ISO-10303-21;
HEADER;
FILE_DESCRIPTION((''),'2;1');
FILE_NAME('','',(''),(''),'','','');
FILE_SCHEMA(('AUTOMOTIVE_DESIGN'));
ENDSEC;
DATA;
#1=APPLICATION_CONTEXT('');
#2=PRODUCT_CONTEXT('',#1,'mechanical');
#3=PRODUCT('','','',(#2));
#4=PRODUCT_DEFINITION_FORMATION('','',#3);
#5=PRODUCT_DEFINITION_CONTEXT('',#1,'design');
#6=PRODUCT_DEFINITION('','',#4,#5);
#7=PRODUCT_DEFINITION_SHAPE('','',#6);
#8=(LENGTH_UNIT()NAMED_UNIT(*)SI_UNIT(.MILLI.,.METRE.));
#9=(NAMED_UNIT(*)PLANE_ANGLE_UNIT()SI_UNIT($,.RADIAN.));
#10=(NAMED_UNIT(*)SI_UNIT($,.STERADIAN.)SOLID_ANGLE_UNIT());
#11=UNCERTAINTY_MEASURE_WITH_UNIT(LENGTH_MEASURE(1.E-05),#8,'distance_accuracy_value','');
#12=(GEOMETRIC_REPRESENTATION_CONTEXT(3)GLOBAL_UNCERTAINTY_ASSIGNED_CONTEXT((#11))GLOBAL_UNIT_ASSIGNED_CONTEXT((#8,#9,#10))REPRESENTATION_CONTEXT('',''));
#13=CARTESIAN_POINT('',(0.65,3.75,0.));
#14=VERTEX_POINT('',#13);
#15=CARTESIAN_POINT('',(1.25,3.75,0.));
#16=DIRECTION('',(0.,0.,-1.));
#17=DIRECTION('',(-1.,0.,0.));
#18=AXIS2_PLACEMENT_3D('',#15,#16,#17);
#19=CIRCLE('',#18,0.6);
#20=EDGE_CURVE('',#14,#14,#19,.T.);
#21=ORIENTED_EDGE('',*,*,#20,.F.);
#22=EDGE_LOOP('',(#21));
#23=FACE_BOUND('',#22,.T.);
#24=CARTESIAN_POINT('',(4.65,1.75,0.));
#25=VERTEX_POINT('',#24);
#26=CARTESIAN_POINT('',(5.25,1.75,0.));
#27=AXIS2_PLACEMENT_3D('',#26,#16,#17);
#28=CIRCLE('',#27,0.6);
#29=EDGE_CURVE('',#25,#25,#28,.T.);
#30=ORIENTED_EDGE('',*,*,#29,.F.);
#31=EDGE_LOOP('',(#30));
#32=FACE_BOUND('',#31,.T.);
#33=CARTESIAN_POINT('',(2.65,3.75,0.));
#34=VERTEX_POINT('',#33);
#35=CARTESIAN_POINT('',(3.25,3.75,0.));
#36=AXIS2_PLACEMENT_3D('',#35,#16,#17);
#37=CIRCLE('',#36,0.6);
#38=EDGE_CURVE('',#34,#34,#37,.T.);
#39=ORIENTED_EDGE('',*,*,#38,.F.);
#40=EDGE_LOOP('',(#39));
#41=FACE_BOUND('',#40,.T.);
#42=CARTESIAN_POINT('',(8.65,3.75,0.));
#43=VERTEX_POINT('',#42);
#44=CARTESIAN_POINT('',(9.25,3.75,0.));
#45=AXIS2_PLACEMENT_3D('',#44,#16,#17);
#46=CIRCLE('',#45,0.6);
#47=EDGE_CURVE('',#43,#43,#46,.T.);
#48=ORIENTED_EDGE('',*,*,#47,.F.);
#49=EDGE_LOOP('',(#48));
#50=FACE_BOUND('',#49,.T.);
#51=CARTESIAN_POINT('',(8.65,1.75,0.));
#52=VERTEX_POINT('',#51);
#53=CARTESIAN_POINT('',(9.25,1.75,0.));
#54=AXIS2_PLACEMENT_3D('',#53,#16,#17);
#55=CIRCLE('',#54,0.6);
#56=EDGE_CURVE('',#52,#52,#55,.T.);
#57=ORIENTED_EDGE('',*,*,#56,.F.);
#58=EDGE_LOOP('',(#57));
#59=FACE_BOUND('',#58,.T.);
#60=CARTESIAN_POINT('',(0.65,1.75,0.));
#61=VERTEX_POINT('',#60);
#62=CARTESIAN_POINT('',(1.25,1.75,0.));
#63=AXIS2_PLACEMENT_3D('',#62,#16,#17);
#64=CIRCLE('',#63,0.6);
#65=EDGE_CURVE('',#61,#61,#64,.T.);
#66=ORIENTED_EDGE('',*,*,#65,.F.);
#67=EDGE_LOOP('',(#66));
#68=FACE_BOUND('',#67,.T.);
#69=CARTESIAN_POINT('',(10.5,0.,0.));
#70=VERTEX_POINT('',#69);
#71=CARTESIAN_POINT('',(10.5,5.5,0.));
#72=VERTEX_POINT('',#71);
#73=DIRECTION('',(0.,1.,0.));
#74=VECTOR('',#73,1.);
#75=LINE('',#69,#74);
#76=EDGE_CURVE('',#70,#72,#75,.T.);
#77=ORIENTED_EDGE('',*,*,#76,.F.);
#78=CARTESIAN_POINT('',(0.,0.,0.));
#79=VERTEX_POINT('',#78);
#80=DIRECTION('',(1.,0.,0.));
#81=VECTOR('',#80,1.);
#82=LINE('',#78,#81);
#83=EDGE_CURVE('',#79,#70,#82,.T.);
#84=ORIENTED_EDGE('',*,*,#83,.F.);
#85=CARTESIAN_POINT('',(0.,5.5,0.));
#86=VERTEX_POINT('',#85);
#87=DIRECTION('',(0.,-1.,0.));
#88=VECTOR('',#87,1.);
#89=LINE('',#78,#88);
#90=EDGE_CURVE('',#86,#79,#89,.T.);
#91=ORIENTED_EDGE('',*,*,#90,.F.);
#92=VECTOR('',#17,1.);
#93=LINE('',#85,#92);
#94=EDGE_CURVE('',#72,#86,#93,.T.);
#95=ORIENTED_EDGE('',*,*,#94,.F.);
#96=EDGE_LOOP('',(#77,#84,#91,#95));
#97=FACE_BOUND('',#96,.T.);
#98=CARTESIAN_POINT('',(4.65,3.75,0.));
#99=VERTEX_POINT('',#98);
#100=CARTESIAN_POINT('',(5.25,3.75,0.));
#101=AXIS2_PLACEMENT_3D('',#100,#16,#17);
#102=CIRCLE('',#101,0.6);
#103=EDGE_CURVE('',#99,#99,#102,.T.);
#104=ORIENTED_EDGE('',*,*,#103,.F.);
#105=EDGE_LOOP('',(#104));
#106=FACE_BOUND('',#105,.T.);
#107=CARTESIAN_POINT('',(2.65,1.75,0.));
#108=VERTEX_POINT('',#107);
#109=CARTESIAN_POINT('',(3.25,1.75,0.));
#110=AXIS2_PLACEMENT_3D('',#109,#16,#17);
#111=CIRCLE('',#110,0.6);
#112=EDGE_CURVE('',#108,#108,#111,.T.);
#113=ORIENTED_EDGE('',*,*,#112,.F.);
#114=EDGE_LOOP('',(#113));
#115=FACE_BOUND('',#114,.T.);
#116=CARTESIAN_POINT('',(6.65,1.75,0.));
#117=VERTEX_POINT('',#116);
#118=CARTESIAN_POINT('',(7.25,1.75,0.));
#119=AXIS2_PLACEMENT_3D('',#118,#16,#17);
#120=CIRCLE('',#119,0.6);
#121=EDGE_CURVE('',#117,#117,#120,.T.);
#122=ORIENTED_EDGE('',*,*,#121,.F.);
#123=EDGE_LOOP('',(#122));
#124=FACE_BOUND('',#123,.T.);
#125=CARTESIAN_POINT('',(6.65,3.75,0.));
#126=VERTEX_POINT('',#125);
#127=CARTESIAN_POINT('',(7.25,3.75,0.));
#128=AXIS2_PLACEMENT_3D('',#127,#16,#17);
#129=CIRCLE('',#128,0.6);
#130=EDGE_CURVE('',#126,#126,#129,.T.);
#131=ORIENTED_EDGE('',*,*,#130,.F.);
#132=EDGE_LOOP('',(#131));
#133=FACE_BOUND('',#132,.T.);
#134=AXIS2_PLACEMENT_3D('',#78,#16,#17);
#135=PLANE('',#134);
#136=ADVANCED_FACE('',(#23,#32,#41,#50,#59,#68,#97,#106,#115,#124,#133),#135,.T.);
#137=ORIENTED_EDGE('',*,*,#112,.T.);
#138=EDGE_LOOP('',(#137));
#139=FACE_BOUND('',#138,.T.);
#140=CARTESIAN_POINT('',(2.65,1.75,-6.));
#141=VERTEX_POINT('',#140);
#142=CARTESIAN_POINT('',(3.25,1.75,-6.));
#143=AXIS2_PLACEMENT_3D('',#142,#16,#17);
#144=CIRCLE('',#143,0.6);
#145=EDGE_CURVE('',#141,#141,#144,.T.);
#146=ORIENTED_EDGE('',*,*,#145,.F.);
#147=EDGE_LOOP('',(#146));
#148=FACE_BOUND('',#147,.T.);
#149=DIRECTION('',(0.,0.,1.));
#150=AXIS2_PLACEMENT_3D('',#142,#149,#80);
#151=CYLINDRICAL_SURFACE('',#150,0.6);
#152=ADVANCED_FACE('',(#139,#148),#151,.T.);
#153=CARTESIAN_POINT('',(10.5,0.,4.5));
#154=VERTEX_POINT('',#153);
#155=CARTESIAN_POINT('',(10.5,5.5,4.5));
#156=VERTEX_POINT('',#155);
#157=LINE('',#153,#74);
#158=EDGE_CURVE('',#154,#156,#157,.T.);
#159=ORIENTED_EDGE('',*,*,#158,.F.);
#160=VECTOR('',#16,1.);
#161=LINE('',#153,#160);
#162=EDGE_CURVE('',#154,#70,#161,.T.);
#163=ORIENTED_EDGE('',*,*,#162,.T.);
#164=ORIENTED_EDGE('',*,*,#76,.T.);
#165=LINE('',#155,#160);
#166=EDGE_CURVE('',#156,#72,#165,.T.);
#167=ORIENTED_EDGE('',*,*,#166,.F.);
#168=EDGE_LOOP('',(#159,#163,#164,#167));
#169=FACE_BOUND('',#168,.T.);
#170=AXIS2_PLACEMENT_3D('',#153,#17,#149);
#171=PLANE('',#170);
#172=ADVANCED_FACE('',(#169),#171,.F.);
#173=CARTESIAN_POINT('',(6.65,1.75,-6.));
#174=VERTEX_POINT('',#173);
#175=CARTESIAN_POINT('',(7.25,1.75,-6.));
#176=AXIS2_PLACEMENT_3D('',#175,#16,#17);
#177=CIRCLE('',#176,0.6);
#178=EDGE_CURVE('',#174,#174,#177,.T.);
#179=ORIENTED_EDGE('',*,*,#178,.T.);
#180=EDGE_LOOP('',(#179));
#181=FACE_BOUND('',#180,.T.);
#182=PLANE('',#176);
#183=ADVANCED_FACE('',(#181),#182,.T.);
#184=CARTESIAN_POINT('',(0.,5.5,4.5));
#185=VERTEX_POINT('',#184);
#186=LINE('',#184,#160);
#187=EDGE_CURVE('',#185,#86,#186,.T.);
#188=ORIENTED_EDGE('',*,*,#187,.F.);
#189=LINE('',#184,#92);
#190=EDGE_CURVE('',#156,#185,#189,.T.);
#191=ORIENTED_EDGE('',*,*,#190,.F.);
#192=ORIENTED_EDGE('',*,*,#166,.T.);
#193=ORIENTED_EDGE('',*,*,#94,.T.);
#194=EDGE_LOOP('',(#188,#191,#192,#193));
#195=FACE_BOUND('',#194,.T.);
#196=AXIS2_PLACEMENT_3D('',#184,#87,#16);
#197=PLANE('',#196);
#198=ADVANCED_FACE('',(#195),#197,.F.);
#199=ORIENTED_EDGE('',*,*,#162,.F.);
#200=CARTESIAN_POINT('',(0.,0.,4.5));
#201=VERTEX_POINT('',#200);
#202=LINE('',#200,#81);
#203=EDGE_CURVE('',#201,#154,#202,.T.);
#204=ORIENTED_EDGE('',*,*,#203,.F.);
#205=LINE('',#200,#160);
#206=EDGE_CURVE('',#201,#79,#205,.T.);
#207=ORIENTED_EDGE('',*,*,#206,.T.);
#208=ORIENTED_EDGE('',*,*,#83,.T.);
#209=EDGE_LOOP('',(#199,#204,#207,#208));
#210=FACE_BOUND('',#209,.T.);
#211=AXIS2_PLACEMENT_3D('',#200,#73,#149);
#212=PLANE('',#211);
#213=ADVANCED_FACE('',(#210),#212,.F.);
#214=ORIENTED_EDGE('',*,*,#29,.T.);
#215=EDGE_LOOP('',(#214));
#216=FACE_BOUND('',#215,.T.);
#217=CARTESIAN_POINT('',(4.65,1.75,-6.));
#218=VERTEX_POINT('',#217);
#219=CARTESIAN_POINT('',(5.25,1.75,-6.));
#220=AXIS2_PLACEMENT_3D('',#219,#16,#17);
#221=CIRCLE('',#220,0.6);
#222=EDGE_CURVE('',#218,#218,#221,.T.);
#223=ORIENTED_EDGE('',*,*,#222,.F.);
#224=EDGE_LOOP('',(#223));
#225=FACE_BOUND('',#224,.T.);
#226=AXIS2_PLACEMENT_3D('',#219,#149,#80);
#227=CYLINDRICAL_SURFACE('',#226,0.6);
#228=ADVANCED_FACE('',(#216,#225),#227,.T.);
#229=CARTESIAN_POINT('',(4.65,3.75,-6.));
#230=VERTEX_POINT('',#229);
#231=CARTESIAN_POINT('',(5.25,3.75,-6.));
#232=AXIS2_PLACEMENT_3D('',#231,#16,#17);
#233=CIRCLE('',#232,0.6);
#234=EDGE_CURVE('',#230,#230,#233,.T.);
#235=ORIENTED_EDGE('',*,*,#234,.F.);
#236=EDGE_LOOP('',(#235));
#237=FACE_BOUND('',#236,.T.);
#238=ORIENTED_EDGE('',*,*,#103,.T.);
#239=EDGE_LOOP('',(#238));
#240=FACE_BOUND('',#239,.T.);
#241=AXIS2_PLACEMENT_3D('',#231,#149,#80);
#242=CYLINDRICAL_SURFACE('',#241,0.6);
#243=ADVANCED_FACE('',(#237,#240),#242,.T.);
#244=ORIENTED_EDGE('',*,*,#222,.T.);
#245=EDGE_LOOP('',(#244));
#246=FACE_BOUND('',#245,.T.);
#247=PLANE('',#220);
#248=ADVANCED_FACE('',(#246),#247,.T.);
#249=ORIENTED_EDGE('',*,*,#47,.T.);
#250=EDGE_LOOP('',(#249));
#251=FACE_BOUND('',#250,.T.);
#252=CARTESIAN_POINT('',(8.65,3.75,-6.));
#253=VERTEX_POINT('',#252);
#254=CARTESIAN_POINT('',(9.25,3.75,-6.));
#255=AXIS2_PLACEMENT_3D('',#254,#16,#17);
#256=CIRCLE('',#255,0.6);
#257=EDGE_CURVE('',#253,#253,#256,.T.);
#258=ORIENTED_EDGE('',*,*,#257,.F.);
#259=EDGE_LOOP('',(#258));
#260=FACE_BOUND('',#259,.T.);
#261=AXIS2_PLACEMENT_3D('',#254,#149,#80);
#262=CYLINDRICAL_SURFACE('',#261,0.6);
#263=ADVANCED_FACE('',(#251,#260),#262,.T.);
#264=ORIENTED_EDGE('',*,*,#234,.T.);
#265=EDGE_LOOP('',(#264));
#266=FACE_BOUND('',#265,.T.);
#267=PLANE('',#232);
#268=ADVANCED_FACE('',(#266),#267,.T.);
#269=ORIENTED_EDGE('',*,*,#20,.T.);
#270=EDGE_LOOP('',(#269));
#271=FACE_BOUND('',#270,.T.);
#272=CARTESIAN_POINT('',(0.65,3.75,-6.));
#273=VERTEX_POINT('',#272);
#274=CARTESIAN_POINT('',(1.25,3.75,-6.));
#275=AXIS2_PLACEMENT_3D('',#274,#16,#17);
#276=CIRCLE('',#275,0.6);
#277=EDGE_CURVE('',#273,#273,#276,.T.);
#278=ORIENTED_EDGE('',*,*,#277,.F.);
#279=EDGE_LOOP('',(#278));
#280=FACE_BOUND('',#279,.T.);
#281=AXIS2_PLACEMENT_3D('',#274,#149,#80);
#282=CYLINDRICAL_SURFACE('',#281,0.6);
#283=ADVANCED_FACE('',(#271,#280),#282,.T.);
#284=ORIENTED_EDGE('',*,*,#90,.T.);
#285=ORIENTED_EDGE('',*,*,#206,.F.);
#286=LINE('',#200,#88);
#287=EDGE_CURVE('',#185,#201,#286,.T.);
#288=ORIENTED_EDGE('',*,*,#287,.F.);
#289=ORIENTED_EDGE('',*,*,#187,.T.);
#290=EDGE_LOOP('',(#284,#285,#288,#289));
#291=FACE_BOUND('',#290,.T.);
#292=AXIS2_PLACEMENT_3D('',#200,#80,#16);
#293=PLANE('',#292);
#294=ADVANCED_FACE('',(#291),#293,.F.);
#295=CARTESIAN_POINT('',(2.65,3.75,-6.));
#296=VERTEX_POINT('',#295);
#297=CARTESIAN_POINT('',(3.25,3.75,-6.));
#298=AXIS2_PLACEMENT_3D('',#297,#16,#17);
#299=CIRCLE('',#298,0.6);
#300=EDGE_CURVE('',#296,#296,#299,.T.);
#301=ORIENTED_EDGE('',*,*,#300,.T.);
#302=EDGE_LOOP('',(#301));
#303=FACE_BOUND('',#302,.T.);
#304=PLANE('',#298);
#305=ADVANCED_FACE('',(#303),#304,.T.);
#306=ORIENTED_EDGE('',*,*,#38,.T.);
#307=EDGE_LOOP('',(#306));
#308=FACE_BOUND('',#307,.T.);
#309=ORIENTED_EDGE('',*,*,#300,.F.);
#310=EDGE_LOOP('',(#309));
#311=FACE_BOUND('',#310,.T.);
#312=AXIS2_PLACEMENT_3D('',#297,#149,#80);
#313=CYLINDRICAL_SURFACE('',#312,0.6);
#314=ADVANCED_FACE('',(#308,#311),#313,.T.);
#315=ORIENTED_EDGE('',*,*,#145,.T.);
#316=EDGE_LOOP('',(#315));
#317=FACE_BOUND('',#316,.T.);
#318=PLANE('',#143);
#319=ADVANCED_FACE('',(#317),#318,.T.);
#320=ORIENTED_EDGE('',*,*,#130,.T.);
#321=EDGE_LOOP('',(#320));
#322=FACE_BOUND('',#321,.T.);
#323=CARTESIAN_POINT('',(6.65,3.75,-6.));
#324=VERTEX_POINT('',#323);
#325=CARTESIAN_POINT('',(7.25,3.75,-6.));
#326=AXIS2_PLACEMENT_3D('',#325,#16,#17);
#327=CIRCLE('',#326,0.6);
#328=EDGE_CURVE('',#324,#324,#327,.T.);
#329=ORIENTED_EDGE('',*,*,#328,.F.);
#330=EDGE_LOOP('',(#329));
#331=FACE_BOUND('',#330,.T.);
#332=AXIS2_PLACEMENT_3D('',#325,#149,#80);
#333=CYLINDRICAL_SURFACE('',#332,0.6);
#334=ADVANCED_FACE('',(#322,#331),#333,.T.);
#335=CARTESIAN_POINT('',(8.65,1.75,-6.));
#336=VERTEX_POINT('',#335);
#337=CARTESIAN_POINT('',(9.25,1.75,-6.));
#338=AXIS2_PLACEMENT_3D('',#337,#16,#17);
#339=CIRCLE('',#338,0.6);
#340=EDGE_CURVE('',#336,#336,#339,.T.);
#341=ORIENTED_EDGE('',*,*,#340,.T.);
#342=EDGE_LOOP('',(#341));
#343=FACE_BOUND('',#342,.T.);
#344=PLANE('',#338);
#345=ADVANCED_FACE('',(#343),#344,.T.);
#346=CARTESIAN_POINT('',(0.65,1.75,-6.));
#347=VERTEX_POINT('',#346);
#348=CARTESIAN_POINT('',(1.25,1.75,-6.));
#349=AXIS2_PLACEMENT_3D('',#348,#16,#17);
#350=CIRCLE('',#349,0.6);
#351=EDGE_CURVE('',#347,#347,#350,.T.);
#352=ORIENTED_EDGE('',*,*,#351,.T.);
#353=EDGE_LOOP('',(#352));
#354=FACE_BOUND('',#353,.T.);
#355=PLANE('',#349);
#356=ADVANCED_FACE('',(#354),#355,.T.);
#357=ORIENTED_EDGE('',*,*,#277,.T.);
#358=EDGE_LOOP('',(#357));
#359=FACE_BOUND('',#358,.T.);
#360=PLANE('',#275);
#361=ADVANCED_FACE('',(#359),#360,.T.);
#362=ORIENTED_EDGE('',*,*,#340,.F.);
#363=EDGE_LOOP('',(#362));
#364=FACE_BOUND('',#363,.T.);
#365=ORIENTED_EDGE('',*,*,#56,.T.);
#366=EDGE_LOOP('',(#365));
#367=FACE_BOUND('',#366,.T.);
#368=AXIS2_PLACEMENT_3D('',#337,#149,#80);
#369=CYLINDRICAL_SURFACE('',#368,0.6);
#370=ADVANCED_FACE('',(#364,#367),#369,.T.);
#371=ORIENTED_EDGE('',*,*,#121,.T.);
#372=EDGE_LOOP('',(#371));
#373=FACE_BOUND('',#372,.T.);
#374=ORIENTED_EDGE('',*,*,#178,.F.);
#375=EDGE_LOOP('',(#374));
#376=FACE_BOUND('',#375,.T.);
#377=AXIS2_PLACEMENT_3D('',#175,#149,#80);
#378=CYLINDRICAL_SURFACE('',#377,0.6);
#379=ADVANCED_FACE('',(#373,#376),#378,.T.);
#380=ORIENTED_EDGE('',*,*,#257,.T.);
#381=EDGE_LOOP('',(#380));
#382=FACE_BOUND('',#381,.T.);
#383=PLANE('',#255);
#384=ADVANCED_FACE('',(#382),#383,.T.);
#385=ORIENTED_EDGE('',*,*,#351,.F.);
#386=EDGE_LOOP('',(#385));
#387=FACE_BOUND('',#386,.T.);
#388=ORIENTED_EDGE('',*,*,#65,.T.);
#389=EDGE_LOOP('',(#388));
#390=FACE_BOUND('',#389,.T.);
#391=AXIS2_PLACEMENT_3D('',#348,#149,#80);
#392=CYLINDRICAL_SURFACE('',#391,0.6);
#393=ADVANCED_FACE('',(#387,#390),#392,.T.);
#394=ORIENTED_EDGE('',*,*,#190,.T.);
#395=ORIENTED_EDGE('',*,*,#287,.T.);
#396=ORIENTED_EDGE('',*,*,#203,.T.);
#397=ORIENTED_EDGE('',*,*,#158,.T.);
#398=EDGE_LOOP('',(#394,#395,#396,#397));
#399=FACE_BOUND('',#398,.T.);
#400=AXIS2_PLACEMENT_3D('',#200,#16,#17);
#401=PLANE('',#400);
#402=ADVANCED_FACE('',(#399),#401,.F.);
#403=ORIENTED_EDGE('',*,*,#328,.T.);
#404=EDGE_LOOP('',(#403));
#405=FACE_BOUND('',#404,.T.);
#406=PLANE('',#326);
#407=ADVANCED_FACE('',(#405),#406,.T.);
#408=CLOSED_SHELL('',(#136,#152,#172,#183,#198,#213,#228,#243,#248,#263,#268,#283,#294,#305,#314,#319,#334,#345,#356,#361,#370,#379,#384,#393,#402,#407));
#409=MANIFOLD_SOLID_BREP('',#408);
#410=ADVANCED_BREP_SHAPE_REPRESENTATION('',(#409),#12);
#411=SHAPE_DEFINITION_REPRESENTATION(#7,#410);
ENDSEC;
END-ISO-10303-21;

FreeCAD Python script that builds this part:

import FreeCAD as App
import Part
import Sketcher

doc = App.newDocument("Part")
body = doc.addObject("PartDesign::Body", "Body")

# Sketch on XY plane
sketch1 = body.newObject("Sketcher::SketchObject", "Sketch")
sketch1.AttachmentSupport = (doc.getObject("XY_Plane"), [""])
sketch1.MapMode = "FlatFace"
sketch1.addGeometry(Part.LineSegment(App.Vector(0, 6, 0), App.Vector(0, 0, 0)), False)
sketch1.addGeometry(Part.LineSegment(App.Vector(0, 0, 0), App.Vector(10, 0, 0)), False)
sketch1.addGeometry(Part.LineSegment(App.Vector(10, 0, 0), App.Vector(10, 6, 0)), False)
sketch1.addGeometry(Part.LineSegment(App.Vector(10, 6, 0), App.Vector(0, 6, 0)), False)
sketch1.addConstraint(Sketcher.Constraint("Coincident", 0, 2, 1, 1))
sketch1.addConstraint(Sketcher.Constraint("Coincident", 1, 2, 2, 1))
sketch1.addConstraint(Sketcher.Constraint("Coincident", 2, 2, 3, 1))
sketch1.addConstraint(Sketcher.Constraint("Coincident", 3, 2, 0, 1))
sketch1.addConstraint(Sketcher.Constraint("Vertical", 0))
sketch1.addConstraint(Sketcher.Constraint("Horizontal", 1))
sketch1.addConstraint(Sketcher.Constraint("Vertical", 2))
sketch1.addConstraint(Sketcher.Constraint("Horizontal", 3))
sketch1.addConstraint(Sketcher.Constraint("Coincident", 0, 2, -1, 1))
sketch1.addConstraint(Sketcher.Constraint("DistanceX", 1, 1, 1, 2, 10.5))
sketch1.addConstraint(Sketcher.Constraint("DistanceY", 0, 2, 0, 1, 5.5))
pad1 = body.newObject("PartDesign::Pad", "Pad")
pad1.Profile = sketch1
pad1.Length = 4.5

# Sketch on XY plane
sketch2 = body.newObject("Sketcher::SketchObject", "Sketch001")
sketch2.AttachmentSupport = (doc.getObject("XY_Plane"), [""])
sketch2.MapMode = "FlatFace"
sketch2.addGeometry(Part.Circle(App.Vector(9.2, 3.8, 0), App.Vector(0, 0, 1), 0.6), False)
sketch2.addGeometry(Part.Circle(App.Vector(9.2, 1.8, 0), App.Vector(0, 0, 1), 0.6), False)
sketch2.addGeometry(Part.Circle(App.Vector(5.2, 1.8, 0), App.Vector(0, 0, 1), 0.6), False)
sketch2.addGeometry(Part.Circle(App.Vector(7.2, 1.8, 0), App.Vector(0, 0, 1), 0.6), False)
sketch2.addGeometry(Part.Circle(App.Vector(7.2, 3.8, 0), App.Vector(0, 0, 1), 0.6), False)
sketch2.addGeometry(Part.Circle(App.Vector(5.2, 3.8, 0), App.Vector(0, 0, 1), 0.6), False)
sketch2.addGeometry(Part.Circle(App.Vector(3.2, 3.8, 0), App.Vector(0, 0, 1), 0.6), False)
sketch2.addGeometry(Part.Circle(App.Vector(1.2, 3.8, 0), App.Vector(0, 0, 1), 0.6), False)
sketch2.addGeometry(Part.Circle(App.Vector(1.2, 1.8, 0), App.Vector(0, 0, 1), 0.6), False)
sketch2.addGeometry(Part.Circle(App.Vector(3.2, 1.8, 0), App.Vector(0, 0, 1), 0.6), False)
sketch2.addConstraint(Sketcher.Constraint("Equal", 0, 1))
sketch2.addConstraint(Sketcher.Constraint("Equal", 1, 2))
sketch2.addConstraint(Sketcher.Constraint("Equal", 2, 3))
sketch2.addConstraint(Sketcher.Constraint("Equal", 3, 4))
sketch2.addConstraint(Sketcher.Constraint("Equal", 4, 5))
sketch2.addConstraint(Sketcher.Constraint("Equal", 5, 6))
sketch2.addConstraint(Sketcher.Constraint("Equal", 6, 7))
sketch2.addConstraint(Sketcher.Constraint("Equal", 7, 8))
sketch2.addConstraint(Sketcher.Constraint("Equal", 8, 9))
sketch2.addConstraint(Sketcher.Constraint("Horizontal", 1, 3, 2, 3))
sketch2.addConstraint(Sketcher.Constraint("Horizontal", 2, 3, 3, 3))
sketch2.addConstraint(Sketcher.Constraint("Horizontal", 0, 3, 4, 3))
sketch2.addConstraint(Sketcher.Constraint("Horizontal", 4, 3, 5, 3))
sketch2.addConstraint(Sketcher.Constraint("Horizontal", 5, 3, 6, 3))
sketch2.addConstraint(Sketcher.Constraint("Horizontal", 6, 3, 7, 3))
sketch2.addConstraint(Sketcher.Constraint("Horizontal", 3, 3, 8, 3))
sketch2.addConstraint(Sketcher.Constraint("Horizontal", 8, 3, 9, 3))
sketch2.addConstraint(Sketcher.Constraint("Vertical", 0, 3, 1, 3))
sketch2.addConstraint(Sketcher.Constraint("Vertical", 3, 3, 4, 3))
sketch2.addConstraint(Sketcher.Constraint("Vertical", 2, 3, 5, 3))
sketch2.addConstraint(Sketcher.Constraint("Vertical", 7, 3, 8, 3))
sketch2.addConstraint(Sketcher.Constraint("Vertical", 6, 3, 9, 3))
sketch2.addConstraint(Sketcher.Constraint("Diameter", 0, 1.2))
sketch2.addConstraint(Sketcher.Constraint("DistanceY", 1, 3, 0, 3, 2.0))
sketch2.addConstraint(Sketcher.Constraint("DistanceX", 2, 3, 1, 3, 4.0))
sketch2.addConstraint(Sketcher.Constraint("DistanceX", 3, 3, 1, 3, 2.0))
sketch2.addConstraint(Sketcher.Constraint("DistanceX", 6, 3, 5, 3, 2.0))
sketch2.addConstraint(Sketcher.Constraint("DistanceX", 7, 3, 6, 3, 2.0))
sketch2.addConstraint(Sketcher.Constraint("DistanceX", -1, 1, 0, 3, 9.25))
sketch2.addConstraint(Sketcher.Constraint("DistanceY", -1, 1, 0, 3, 3.75))
pad2 = body.newObject("PartDesign::Pad", "Pad001")
pad2.Profile = sketch2
pad2.Length = 6
pad2.Reversed = True

doc.recompute()
